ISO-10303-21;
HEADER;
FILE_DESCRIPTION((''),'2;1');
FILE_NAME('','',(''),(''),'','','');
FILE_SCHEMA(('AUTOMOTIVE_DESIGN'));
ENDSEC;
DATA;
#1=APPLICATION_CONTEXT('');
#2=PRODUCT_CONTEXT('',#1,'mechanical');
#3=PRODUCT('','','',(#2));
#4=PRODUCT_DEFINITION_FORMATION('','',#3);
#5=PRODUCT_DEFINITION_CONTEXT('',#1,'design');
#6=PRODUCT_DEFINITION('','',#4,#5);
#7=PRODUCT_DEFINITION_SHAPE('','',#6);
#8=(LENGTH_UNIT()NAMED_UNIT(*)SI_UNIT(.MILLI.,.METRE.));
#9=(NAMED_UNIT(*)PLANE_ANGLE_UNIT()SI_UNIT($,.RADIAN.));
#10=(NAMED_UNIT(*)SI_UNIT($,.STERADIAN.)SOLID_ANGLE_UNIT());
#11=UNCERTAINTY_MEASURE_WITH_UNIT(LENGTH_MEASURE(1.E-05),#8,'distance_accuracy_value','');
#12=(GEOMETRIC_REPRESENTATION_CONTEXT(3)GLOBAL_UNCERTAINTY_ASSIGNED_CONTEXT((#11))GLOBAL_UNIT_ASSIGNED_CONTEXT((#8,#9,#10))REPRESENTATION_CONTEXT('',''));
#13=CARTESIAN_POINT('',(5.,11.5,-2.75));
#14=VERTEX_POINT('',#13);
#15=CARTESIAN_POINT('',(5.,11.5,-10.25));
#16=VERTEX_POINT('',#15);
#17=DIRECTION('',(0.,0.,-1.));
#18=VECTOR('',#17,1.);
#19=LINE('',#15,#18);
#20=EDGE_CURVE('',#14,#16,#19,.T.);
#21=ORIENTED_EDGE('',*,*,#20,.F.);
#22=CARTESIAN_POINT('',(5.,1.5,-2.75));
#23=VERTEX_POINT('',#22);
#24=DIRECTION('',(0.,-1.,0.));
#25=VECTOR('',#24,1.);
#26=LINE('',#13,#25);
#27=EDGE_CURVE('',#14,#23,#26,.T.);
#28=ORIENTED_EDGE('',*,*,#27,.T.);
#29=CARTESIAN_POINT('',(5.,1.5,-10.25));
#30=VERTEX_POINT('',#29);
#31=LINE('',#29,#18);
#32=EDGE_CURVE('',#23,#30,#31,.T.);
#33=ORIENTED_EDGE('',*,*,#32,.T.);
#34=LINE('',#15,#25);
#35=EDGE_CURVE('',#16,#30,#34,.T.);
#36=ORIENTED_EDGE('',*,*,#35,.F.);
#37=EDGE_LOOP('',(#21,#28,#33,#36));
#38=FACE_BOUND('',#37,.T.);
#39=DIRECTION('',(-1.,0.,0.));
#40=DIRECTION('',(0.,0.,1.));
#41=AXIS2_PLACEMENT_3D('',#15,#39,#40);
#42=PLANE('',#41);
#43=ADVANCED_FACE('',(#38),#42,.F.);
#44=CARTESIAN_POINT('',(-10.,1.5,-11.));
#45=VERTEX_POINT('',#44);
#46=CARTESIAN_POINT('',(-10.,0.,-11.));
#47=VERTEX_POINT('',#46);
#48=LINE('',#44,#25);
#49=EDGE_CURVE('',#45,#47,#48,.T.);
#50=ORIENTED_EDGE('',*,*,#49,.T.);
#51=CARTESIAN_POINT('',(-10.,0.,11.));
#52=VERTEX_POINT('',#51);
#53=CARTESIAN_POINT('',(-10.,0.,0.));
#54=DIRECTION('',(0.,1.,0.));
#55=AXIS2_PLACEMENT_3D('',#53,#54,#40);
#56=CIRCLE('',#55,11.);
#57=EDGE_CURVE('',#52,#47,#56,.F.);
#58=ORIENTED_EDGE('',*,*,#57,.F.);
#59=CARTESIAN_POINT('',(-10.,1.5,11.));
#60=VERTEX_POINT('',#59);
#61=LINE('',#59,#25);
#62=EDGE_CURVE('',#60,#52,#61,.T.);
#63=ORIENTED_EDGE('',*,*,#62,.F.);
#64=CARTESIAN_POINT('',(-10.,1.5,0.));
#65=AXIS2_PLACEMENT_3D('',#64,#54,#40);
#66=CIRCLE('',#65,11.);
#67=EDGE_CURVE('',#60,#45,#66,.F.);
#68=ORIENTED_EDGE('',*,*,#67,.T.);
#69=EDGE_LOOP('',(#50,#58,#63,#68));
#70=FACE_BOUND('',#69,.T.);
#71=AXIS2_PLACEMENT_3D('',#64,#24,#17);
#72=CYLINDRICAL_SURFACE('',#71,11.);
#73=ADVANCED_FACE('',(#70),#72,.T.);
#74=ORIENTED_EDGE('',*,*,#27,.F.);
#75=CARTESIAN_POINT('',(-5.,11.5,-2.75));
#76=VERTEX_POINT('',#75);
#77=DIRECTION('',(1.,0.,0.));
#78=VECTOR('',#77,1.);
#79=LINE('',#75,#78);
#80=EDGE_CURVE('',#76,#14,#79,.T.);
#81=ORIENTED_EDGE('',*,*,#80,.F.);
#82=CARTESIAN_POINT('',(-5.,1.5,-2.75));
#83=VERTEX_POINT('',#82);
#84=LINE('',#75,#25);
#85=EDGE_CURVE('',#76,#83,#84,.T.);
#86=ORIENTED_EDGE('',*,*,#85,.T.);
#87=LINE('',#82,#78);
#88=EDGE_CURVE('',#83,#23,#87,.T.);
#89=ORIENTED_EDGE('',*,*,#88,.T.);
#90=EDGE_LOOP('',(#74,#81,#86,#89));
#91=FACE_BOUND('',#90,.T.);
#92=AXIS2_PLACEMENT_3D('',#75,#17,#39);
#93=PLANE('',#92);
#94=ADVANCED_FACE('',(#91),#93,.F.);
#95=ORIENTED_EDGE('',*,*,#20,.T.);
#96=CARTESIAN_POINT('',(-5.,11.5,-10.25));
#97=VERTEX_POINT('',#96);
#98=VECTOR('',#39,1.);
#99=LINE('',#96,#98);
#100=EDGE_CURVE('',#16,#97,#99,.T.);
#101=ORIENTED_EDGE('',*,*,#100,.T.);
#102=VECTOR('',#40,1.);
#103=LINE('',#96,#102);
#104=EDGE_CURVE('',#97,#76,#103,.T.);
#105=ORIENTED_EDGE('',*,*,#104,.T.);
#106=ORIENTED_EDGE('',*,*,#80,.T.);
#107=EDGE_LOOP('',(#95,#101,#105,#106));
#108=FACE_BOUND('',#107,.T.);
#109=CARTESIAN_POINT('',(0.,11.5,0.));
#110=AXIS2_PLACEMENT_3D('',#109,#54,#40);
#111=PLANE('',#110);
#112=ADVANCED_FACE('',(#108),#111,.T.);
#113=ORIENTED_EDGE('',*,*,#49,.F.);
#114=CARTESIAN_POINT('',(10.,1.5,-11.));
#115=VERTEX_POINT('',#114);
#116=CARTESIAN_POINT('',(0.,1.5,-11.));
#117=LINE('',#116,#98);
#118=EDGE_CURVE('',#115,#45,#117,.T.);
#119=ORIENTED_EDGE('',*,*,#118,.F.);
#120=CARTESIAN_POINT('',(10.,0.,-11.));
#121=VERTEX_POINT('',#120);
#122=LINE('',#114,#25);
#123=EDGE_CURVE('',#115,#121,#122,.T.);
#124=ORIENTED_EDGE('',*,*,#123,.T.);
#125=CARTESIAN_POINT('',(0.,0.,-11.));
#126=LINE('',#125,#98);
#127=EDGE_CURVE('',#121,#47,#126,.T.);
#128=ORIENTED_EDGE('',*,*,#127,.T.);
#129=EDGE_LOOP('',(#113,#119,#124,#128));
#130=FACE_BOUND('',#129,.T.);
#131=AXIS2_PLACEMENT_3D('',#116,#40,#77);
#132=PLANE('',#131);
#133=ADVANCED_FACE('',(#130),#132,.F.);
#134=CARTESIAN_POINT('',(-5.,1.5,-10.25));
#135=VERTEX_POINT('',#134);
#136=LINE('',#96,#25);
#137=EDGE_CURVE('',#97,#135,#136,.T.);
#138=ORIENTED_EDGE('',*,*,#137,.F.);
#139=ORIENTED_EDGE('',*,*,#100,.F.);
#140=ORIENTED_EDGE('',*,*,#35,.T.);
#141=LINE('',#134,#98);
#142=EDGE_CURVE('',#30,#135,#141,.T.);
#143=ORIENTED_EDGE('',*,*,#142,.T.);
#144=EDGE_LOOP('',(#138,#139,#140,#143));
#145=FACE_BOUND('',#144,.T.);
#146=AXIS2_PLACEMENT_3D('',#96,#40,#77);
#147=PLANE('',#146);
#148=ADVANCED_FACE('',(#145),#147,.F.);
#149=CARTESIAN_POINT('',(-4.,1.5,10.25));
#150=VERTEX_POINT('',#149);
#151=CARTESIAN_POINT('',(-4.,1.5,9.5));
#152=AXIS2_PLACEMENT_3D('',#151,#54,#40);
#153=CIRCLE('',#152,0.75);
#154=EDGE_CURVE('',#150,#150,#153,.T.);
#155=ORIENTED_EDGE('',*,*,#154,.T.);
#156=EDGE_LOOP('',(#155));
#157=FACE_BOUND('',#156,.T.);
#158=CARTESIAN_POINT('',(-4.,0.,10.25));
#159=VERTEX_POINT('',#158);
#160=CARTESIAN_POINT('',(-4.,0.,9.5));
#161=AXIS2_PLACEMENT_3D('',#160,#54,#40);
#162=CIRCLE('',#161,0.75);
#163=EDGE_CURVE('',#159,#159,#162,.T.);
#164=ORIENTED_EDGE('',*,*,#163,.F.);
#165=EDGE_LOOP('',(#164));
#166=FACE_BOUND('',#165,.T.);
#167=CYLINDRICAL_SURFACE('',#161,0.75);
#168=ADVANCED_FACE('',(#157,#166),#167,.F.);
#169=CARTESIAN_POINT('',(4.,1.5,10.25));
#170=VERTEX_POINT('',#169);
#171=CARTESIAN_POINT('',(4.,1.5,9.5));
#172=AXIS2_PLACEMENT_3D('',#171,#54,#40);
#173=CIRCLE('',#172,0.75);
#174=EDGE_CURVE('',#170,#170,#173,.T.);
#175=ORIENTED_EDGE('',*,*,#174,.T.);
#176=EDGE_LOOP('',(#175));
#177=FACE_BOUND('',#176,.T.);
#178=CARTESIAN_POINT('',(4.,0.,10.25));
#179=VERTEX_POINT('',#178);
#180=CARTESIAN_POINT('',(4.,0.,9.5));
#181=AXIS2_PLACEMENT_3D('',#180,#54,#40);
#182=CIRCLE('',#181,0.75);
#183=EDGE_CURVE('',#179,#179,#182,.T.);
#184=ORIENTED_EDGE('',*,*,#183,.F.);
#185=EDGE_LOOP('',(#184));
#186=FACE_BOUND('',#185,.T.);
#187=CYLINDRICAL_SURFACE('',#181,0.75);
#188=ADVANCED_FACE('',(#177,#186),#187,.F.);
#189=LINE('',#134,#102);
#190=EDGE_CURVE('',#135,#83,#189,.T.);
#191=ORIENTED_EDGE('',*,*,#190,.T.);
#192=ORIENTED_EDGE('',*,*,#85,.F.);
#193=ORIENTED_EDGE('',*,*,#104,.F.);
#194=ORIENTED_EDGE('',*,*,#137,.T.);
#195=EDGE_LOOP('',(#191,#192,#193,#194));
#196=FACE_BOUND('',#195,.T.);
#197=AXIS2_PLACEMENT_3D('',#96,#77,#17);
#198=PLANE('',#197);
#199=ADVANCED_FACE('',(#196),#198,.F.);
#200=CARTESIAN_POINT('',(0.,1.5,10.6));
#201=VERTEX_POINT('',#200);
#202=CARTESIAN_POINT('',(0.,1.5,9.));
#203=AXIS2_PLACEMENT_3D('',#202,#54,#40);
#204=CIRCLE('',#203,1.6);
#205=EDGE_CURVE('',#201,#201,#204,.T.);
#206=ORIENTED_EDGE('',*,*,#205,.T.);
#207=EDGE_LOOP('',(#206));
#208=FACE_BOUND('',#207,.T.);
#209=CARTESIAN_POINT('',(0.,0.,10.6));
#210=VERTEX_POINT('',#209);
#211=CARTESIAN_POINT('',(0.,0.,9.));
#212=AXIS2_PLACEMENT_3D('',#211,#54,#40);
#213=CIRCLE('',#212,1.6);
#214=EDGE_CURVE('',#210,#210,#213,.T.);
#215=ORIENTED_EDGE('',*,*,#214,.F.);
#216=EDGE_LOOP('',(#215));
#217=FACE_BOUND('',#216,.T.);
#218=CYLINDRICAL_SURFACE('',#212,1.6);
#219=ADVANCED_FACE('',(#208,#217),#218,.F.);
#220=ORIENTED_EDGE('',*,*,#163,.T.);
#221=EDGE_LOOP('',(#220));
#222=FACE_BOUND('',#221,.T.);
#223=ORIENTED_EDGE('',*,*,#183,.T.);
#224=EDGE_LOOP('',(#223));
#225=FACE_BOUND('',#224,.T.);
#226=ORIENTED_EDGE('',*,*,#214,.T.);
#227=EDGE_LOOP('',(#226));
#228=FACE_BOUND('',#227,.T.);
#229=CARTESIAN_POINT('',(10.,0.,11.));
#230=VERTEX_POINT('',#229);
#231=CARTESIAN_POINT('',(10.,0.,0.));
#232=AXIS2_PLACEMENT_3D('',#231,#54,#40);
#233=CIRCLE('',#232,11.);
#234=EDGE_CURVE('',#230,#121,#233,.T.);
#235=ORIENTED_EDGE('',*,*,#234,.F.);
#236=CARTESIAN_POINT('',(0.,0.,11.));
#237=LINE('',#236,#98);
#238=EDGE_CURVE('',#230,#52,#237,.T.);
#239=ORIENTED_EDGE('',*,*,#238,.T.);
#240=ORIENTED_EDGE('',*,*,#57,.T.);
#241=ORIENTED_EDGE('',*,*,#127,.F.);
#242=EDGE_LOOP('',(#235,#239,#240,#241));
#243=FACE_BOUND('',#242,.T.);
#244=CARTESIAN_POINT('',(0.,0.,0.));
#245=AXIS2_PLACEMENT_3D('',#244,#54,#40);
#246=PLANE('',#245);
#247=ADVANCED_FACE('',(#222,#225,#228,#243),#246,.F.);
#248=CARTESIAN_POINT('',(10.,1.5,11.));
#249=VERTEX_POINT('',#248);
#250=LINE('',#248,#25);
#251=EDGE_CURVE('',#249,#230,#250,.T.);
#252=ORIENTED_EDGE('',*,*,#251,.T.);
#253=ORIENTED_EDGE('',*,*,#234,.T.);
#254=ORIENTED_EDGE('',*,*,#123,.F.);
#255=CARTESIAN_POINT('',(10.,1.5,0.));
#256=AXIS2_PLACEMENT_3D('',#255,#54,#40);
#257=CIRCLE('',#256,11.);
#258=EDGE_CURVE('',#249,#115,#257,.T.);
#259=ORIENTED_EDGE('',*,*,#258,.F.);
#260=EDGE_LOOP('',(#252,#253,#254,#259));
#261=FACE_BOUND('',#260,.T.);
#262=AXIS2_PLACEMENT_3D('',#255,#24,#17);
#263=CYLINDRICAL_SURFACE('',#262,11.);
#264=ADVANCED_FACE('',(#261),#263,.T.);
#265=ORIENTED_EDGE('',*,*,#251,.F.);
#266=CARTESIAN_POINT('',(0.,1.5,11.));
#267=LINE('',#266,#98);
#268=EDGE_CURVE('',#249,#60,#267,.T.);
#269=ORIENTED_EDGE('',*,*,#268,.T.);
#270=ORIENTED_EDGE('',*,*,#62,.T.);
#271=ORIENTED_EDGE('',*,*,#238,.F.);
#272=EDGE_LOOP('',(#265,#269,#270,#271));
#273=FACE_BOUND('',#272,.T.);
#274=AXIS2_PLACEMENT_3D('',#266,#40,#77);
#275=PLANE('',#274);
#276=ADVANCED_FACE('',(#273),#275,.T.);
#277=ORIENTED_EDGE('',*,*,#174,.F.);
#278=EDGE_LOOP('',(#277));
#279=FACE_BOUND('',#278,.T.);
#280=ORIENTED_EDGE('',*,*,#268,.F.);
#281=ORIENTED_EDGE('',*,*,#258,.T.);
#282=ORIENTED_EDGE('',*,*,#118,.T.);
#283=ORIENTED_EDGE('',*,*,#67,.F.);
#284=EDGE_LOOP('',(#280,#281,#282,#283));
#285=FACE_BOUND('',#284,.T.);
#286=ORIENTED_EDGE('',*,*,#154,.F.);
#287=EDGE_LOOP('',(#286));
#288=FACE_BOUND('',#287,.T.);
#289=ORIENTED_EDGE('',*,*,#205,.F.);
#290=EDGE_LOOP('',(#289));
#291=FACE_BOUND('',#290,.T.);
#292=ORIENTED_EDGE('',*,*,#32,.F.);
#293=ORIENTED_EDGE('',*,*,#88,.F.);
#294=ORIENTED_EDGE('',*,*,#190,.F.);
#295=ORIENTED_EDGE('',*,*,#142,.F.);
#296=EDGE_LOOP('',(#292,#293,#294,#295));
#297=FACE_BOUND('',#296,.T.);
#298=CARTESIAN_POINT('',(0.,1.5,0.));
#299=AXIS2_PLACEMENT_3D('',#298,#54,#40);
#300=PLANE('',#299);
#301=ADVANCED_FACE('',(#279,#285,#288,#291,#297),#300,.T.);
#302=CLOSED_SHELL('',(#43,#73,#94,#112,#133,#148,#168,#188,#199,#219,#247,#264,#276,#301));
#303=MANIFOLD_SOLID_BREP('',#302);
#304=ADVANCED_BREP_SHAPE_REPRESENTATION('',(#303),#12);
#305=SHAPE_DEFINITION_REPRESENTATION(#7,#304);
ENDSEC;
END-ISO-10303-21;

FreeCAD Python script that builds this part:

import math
import FreeCAD as App
import Part
import Sketcher

V = App.Vector
Q = App.Units.Quantity

doc = App.newDocument("Part")
body = doc.addObject("PartDesign::Body", "Body")

# Sketch on XZ plane
sketch1 = doc.addObject("Sketcher::SketchObject", "Sketch")
body.addObject(sketch1)
sketch1.AttachmentSupport = (doc.XZ_Plane, [""])
sketch1.MapMode = "FlatFace"
sketch1.addGeometry(Part.ArcOfCircle(Part.Circle(V(-10, 0, 0), V(0, 0, 1), 11), math.radians(180), math.radians(270)), False)
sketch1.addGeometry(Part.ArcOfCircle(Part.Circle(V(-10, 0, 0), V(0, 0, 1), 11), math.radians(90), math.radians(180)), False)
sketch1.addGeometry(Part.LineSegment(V(-10, 11, 0), V(10, 11, 0)), False)
sketch1.addGeometry(Part.ArcOfCircle(Part.Circle(V(10, 0, 0), V(0, 0, 1), 11), math.radians(0), math.radians(90)), False)
sketch1.addGeometry(Part.ArcOfCircle(Part.Circle(V(10, 0, 0), V(0, 0, 1), 11), math.radians(-90), math.radians(0)), False)
sketch1.addGeometry(Part.LineSegment(V(10, -11, 0), V(-10, -11, 0)), False)
sketch1.addConstraint(Sketcher.Constraint("Tangent", 0, 1, 1, 2))
sketch1.addConstraint(Sketcher.Constraint("Tangent", 1, 1, 2, 1))
sketch1.addConstraint(Sketcher.Constraint("Tangent", 2, 2, 3, 2))
sketch1.addConstraint(Sketcher.Constraint("Tangent", 3, 1, 4, 2))
sketch1.addConstraint(Sketcher.Constraint("Tangent", 4, 1, 5, 1))
sketch1.addConstraint(Sketcher.Constraint("Tangent", 5, 2, 0, 2))
sketch1.addConstraint(Sketcher.Constraint("Horizontal", 2))
sketch1.addConstraint(Sketcher.Constraint("Horizontal", 5))
sketch1.addConstraint(Sketcher.Constraint("Equal", 0, 1))
sketch1.addConstraint(Sketcher.Constraint("Equal", 1, 3))
sketch1.addConstraint(Sketcher.Constraint("Symmetric", 0, 3, 3, 3, -1, 1))
sketch1.addConstraint(Sketcher.Constraint("PointOnObject", 0, 1, -1))
sketch1.addConstraint(Sketcher.Constraint("PointOnObject", 3, 1, -1))
sketch1.addConstraint(Sketcher.Constraint("Radius", 0, Q("11 mm")))
sketch1.addConstraint(Sketcher.Constraint("DistanceX", 2, 1, 2, 2, Q("20 mm")))
pad1 = doc.addObject("PartDesign::Pad", "Pad")
body.addObject(pad1)
pad1.Profile = sketch1
pad1.Length = 1.5
pad1.Reversed = True

# Sketch on XZ plane
sketch2 = doc.addObject("Sketcher::SketchObject", "Sketch001")
body.addObject(sketch2)
sketch2.AttachmentSupport = (doc.XZ_Plane, [""])
sketch2.MapMode = "FlatFace"
sketch2.AttachmentOffset = App.Placement(V(0, 0, -1.5), App.Rotation())
sketch2.addGeometry(Part.LineSegment(V(-5, -10, 0), V(-5, -3, 0)), False)
sketch2.addGeometry(Part.LineSegment(V(-5, -3, 0), V(5, -3, 0)), False)
sketch2.addGeometry(Part.LineSegment(V(5, -3, 0), V(5, -10, 0)), False)
sketch2.addGeometry(Part.LineSegment(V(5, -10, 0), V(-5, -10, 0)), False)
sketch2.addConstraint(Sketcher.Constraint("Coincident", 0, 2, 1, 1))
sketch2.addConstraint(Sketcher.Constraint("Coincident", 1, 2, 2, 1))
sketch2.addConstraint(Sketcher.Constraint("Coincident", 2, 2, 3, 1))
sketch2.addConstraint(Sketcher.Constraint("Coincident", 3, 2, 0, 1))
sketch2.addConstraint(Sketcher.Constraint("Vertical", 0))
sketch2.addConstraint(Sketcher.Constraint("Horizontal", 1))
sketch2.addConstraint(Sketcher.Constraint("Vertical", 2))
sketch2.addConstraint(Sketcher.Constraint("Horizontal", 3))
sketch2.addConstraint(Sketcher.Constraint("DistanceX", 1, 1, 1, 2, Q("10 mm")))
sketch2.addConstraint(Sketcher.Constraint("DistanceY", 0, 1, 0, 2, Q("7.5 mm")))
sketch2.addConstraint(Sketcher.Constraint("DistanceX", 0, 2, -1, 1, Q("5 mm")))
sketch2.addConstraint(Sketcher.Constraint("DistanceY", 0, 2, -1, 1, Q("2.75 mm")))
pad2 = doc.addObject("PartDesign::Pad", "Pad001")
body.addObject(pad2)
pad2.Profile = sketch2
pad2.Length = 10
pad2.Reversed = True

# Sketch on XZ plane
sketch3 = doc.addObject("Sketcher::SketchObject", "Sketch002")
body.addObject(sketch3)
sketch3.AttachmentSupport = (doc.XZ_Plane, [""])
sketch3.MapMode = "FlatFace"
sketch3.AttachmentOffset = App.Placement(V(0, 0, -1.5), App.Rotation())
sketch3.addGeometry(Part.Circle(V(0, 9, 0), V(0, 0, 1), 1.6), False)
sketch3.addGeometry(Part.Circle(V(-4, 9.5, 0), V(0, 0, 1), 0.8), False)
sketch3.addGeometry(Part.Circle(V(4, 9.5, 0), V(0, 0, 1), 0.8), False)
sketch3.addConstraint(Sketcher.Constraint("Equal", 1, 2))
sketch3.addConstraint(Sketcher.Constraint("Symmetric", 1, 3, 2, 3, -2))
sketch3.addConstraint(Sketcher.Constraint("PointOnObject", 0, 3, -2))
sketch3.addConstraint(Sketcher.Constraint("Diameter", 0, Q("3.2 mm")))
sketch3.addConstraint(Sketcher.Constraint("Diameter", 1, Q("1.5 mm")))
sketch3.addConstraint(Sketcher.Constraint("DistanceY", -1, 1, 0, 3, Q("9 mm")))
sketch3.addConstraint(Sketcher.Constraint("DistanceX", 1, 3, -1, 1, Q("4 mm")))
sketch3.addConstraint(Sketcher.Constraint("DistanceY", -1, 1, 1, 3, Q("9.5 mm")))
pocket1 = doc.addObject("PartDesign::Pocket", "Pocket")
body.addObject(pocket1)
pocket1.Profile = sketch3
pocket1.Type = "ThroughAll"
pocket1.Reversed = True

doc.recompute()
